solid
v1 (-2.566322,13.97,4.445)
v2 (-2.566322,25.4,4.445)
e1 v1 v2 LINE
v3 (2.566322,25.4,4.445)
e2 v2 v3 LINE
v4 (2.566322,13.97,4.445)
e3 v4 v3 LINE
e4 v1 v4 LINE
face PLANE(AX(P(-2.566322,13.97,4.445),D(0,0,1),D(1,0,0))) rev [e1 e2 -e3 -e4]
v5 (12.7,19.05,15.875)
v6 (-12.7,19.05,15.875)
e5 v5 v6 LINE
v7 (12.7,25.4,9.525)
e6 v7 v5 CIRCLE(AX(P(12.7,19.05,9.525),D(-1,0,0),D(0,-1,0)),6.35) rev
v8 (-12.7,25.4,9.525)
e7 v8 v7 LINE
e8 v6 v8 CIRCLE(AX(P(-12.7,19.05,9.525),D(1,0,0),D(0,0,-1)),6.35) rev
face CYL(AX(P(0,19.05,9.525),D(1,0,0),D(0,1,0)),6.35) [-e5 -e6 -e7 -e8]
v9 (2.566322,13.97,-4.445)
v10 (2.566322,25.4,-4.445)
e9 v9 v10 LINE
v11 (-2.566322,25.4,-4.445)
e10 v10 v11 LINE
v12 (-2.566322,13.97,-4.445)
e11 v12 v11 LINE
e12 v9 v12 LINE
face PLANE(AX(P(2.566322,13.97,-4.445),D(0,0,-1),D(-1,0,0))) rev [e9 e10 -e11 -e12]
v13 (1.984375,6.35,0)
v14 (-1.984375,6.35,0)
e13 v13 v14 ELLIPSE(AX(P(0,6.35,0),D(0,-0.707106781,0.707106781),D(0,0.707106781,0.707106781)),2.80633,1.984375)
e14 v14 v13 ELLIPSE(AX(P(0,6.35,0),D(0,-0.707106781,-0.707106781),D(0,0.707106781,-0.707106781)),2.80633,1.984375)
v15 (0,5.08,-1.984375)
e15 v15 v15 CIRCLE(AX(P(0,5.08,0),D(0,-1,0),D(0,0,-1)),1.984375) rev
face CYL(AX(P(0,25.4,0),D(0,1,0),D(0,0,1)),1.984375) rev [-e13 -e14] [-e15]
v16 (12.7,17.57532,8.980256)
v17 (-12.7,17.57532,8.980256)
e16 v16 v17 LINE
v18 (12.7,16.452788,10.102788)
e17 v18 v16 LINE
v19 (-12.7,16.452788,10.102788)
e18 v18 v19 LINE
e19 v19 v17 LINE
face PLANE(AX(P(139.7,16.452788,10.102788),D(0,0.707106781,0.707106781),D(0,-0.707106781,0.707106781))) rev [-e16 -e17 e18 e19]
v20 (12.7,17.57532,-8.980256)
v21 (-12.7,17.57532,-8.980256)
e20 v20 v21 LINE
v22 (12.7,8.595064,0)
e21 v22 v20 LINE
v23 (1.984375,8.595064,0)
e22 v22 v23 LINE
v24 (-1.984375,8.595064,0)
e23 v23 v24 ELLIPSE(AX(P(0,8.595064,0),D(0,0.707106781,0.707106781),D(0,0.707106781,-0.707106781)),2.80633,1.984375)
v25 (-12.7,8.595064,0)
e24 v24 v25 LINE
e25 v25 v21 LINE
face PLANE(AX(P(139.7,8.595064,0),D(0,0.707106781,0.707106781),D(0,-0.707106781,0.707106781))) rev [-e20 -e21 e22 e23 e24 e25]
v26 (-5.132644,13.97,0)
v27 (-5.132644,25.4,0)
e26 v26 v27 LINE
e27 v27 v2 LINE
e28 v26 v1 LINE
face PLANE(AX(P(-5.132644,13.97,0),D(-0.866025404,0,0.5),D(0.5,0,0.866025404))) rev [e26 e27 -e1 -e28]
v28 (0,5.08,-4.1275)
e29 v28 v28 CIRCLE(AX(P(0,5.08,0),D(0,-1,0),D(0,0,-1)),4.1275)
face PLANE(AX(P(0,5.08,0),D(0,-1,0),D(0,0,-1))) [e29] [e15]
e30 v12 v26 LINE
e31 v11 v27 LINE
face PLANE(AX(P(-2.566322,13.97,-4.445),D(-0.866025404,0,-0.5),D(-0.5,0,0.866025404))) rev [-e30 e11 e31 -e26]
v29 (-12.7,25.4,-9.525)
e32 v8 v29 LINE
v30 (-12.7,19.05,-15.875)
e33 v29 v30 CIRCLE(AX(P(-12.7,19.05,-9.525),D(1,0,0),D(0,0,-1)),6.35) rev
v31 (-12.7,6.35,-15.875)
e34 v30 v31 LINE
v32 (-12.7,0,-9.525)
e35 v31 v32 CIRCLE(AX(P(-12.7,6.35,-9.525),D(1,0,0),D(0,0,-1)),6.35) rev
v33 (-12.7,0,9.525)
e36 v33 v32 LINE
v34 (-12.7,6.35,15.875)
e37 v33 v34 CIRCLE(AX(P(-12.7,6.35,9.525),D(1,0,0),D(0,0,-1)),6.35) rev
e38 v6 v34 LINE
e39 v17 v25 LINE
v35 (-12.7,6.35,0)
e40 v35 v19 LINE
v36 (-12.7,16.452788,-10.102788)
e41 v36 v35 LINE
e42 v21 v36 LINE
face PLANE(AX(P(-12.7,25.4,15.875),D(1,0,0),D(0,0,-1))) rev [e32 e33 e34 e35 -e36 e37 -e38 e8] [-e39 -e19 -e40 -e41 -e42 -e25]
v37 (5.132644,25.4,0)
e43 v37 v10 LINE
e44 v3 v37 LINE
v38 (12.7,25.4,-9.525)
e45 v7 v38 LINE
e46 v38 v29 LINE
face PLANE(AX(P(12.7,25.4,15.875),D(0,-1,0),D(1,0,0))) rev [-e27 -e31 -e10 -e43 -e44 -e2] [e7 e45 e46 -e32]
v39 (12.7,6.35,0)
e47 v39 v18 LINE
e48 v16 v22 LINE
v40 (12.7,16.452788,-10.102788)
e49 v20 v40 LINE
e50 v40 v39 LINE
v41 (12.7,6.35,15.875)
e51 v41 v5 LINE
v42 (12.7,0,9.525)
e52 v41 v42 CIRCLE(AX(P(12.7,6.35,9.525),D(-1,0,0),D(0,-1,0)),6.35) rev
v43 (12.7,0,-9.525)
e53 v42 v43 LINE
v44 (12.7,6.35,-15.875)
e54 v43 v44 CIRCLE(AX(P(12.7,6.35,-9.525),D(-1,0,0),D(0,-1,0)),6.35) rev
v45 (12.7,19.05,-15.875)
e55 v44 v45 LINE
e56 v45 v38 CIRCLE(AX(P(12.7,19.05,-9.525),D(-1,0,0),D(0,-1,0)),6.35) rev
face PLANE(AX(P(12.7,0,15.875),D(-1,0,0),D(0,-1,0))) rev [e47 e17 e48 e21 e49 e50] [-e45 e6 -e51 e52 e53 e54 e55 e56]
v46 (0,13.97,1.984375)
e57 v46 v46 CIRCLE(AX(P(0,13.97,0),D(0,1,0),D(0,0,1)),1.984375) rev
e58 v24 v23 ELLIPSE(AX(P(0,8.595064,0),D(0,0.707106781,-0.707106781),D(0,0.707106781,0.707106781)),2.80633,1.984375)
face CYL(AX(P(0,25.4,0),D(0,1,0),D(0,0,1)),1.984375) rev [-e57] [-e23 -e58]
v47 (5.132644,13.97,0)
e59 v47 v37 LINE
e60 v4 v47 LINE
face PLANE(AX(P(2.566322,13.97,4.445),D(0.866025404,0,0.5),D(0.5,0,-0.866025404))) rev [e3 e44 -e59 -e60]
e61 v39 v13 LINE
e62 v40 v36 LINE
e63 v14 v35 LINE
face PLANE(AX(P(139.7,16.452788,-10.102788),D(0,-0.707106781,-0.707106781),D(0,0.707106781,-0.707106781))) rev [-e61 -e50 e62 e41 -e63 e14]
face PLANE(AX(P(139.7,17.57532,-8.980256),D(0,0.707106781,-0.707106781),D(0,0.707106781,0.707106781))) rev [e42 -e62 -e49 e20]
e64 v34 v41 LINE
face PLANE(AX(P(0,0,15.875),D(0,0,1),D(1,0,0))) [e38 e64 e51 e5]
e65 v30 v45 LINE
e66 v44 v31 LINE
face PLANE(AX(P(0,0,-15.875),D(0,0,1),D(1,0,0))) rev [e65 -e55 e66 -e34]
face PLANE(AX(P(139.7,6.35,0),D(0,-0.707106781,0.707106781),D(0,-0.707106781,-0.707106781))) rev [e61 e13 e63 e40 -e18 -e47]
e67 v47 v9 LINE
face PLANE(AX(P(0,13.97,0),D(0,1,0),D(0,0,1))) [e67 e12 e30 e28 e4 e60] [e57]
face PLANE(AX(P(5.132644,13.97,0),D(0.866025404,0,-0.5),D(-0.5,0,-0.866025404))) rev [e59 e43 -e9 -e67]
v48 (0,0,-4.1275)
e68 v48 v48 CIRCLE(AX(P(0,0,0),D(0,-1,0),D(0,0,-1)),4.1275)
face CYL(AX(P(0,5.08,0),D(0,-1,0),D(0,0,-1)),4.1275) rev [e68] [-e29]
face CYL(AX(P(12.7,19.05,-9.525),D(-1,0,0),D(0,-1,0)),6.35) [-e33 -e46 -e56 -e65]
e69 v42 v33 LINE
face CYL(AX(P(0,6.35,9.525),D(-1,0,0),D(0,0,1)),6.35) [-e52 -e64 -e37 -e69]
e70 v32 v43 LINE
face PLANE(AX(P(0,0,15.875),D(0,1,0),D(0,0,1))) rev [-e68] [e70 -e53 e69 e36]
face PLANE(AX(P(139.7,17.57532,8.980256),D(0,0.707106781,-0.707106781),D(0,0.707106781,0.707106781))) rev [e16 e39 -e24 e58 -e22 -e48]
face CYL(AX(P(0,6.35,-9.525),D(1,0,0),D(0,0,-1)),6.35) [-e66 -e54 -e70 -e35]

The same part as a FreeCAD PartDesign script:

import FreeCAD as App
import Part
import Sketcher

V = App.Vector
Q = App.Units.Quantity


def edges_at(feature, points):
    """Names of the edges that pass closest to the given points."""
    edges = feature.Shape.Edges
    near = lambda p: min(range(len(edges)), key=lambda i: edges[i].distToShape(Part.Vertex(*p))[0])
    return sorted({f"Edge{near(p) + 1}" for p in points})

doc = App.newDocument("Part")
body = doc.addObject("PartDesign::Body", "Body")

sketch1 = body.newObject("Sketcher::SketchObject", "Sketch")
sketch1.AttachmentSupport = (doc.getObject("XY_Plane"), [""])
sketch1.MapMode = "FlatFace"
sketch1.addGeometry([
    Part.LineSegment(V(13, 0, 0), V(13, 25, 0)),
    Part.LineSegment(V(13, 25, 0), V(-13, 25, 0)),
    Part.LineSegment(V(-13, 25, 0), V(-13, 0, 0)),
    Part.LineSegment(V(-13, 0, 0), V(13, 0, 0)),
], False)
sketch1.addConstraint([
    Sketcher.Constraint("Coincident", 0, 2, 1, 1),
    Sketcher.Constraint("Coincident", 1, 2, 2, 1),
    Sketcher.Constraint("Coincident", 2, 2, 3, 1),
    Sketcher.Constraint("Coincident", 3, 2, 0, 1),
    Sketcher.Constraint("Vertical", 0),
    Sketcher.Constraint("Horizontal", 1),
    Sketcher.Constraint("Vertical", 2),
    Sketcher.Constraint("Horizontal", 3),
    Sketcher.Constraint("Symmetric", 2, 2, 3, 2, -1, 1),
    Sketcher.Constraint("Equal", 3, 0),
    Sketcher.Constraint("DistanceX", 1, 2, 1, 1, Q("1 in")),
])
pad1 = body.newObject("PartDesign::Pad", "Pad")
pad1.Profile = sketch1
pad1.Length = Q("1.25 in")
pad1.Midplane = True

sketch2 = body.newObject("Sketcher::SketchObject", "Sketch001")
sketch2.AttachmentSupport = (doc.getObject("YZ_Plane"), [""])
sketch2.MapMode = "FlatFace"
sketch2.AttachmentOffset = App.Placement(V(0, 0, -0.5 * 25.4), App.Rotation())
sketch2.addGeometry([
    Part.LineSegment(V(8.6, 0, 0), V(17.6, -9, 0)),
    Part.LineSegment(V(17.6, -9, 0), V(16.5, -10.1, 0)),
    Part.LineSegment(V(16.5, -10.1, 0), V(6.3, 0, 0)),
    Part.LineSegment(V(6.3, 0, 0), V(16.5, 10.1, 0)),
    Part.LineSegment(V(16.5, 10.1, 0), V(17.6, 9, 0)),
    Part.LineSegment(V(17.6, 9, 0), V(8.6, 0, 0)),
], False)
sketch2.addConstraint([
    Sketcher.Constraint("Coincident", 0, 2, 1, 1),
    Sketcher.Constraint("Coincident", 1, 2, 2, 1),
    Sketcher.Constraint("Coincident", 2, 2, 3, 1),
    Sketcher.Constraint("Coincident", 3, 2, 4, 1),
    Sketcher.Constraint("Coincident", 4, 2, 5, 1),
    Sketcher.Constraint("Coincident", 5, 2, 0, 1),
    Sketcher.Constraint("Symmetric", 1, 2, 3, 2, -1),
    Sketcher.Constraint("Symmetric", 0, 2, 4, 2, -1),
    Sketcher.Constraint("PointOnObject", 2, 2, -1),
    Sketcher.Constraint("PointOnObject", 5, 2, -1),
    Sketcher.Constraint("Perpendicular", 0, 1),
    Sketcher.Constraint("Perpendicular", 1, 2),
    Sketcher.Constraint("Perpendicular", 2, 3),
    Sketcher.Constraint("Distance", 0, Q("0.5 in")),
    Sketcher.Constraint("DistanceX", -1, 1, 2, 2, Q("0.25 in")),
    Sketcher.Constraint("Distance", 1, Q("0.0625 in")),
])
pocket1 = body.newObject("PartDesign::Pocket", "Pocket")
pocket1.Profile = sketch2
pocket1.Length = Q("6 in")
pocket1.Reversed = True

sketch3 = body.newObject("Sketcher::SketchObject", "Sketch002")
sketch3.AttachmentSupport = (doc.getObject("XZ_Plane"), [""])
sketch3.MapMode = "FlatFace"
sketch3.AttachmentOffset = App.Placement(V(0, 0, -1 * 25.4), App.Rotation())
sketch3.addGeometry([
    Part.Circle(V(0, 0, 0), V(0, 0, 1), 2),
    Part.Circle(V(76.2, 0, 0), V(0, 0, 1), 2),
], False)
sketch3.addConstraint([
    Sketcher.Constraint("Coincident", 0, 3, -1, 1),
    Sketcher.Constraint("Equal", 0, 1),
    Sketcher.Constraint("PointOnObject", 1, 3, -1),
    Sketcher.Constraint("Diameter", 0, Q("0.15625 in")),
    Sketcher.Constraint("DistanceX", -1, 1, 1, 3, Q("3 in")),
])
doc.recompute()
hole = body.newObject("PartDesign::Hole", "Hole")
hole.Profile = sketch3
hole.ThreadType = "None"
hole.Diameter = Q("0.15625 in")
hole.DepthType = "ThroughAll"
hole.Reversed = True

sketch4 = body.newObject("Sketcher::SketchObject", "Sketch003")
sketch4.AttachmentSupport = (doc.getObject("XZ_Plane"), [""])
sketch4.MapMode = "FlatFace"
sketch4.AttachmentOffset = App.Placement(V(0, 0, -1 * 25.4), App.Rotation())
sketch4.addGeometry([
    Part.LineSegment(V(5, 0, 0), V(3, -4, 0)),
    Part.LineSegment(V(3, -4, 0), V(-3, -4, 0)),
    Part.LineSegment(V(-3, -4, 0), V(-5, 0, 0)),
    Part.LineSegment(V(-5, 0, 0), V(-3, 4, 0)),
    Part.LineSegment(V(-3, 4, 0), V(3, 4, 0)),
    Part.LineSegment(V(3, 4, 0), V(5, 0, 0)),
], False)
sketch4.addConstraint([
    Sketcher.Constraint("Coincident", 0, 2, 1, 1),
    Sketcher.Constraint("Coincident", 1, 2, 2, 1),
    Sketcher.Constraint("Coincident", 2, 2, 3, 1),
    Sketcher.Constraint("Coincident", 3, 2, 4, 1),
    Sketcher.Constraint("Coincident", 4, 2, 5, 1),
    Sketcher.Constraint("Coincident", 5, 2, 0, 1),
    Sketcher.Constraint("Horizontal", 1),
    Sketcher.Constraint("Horizontal", 4),
    Sketcher.Constraint("Symmetric", 0, 2, 3, 2, -1, 1),
    Sketcher.Constraint("Symmetric", 2, 2, 5, 2, -1, 1),
    Sketcher.Constraint("PointOnObject", 2, 2, -1),
    Sketcher.Constraint("Parallel", 2, 5),
    Sketcher.Constraint("Vertical", 1, 2, 3, 2),
    Sketcher.Constraint("Angle", 0, Q("-120 deg")),
    Sketcher.Constraint("DistanceY", 1, 2, 3, 2, Q("0.35 in")),
    Sketcher.Constraint("DistanceX", 1, 2, 1, 1, 5.132644),
])
pocket2 = body.newObject("PartDesign::Pocket", "Pocket001")
pocket2.Profile = sketch4
pocket2.Length = Q("0.45 in")
pocket2.Reversed = True

sketch5 = body.newObject("Sketcher::SketchObject", "Sketch004")
sketch5.AttachmentSupport = (doc.getObject("XZ_Plane"), [""])
sketch5.MapMode = "FlatFace"
sketch5.addGeometry(Part.Circle(V(0, 0, 0), V(0, 0, 1), 4.1), False)
sketch5.addConstraint([
    Sketcher.Constraint("Coincident", 0, 3, -1, 1),
    Sketcher.Constraint("Diameter", 0, Q("0.325 in")),
])
pocket3 = body.newObject("PartDesign::Pocket", "Pocket002")
pocket3.Profile = sketch5
pocket3.Length = Q("0.2 in")
doc.recompute()

fillet = body.newObject("PartDesign::Fillet", "Fillet")
fillet.Base = (pocket3, edges_at(pocket3, [
    (0, 25.4, 15.875),
    (0, 0, 15.875),
    (0, 25.4, -15.875),
    (0, 0, -15.875),
]))
fillet.Radius = Q("0.25 in")

doc.recompute()
